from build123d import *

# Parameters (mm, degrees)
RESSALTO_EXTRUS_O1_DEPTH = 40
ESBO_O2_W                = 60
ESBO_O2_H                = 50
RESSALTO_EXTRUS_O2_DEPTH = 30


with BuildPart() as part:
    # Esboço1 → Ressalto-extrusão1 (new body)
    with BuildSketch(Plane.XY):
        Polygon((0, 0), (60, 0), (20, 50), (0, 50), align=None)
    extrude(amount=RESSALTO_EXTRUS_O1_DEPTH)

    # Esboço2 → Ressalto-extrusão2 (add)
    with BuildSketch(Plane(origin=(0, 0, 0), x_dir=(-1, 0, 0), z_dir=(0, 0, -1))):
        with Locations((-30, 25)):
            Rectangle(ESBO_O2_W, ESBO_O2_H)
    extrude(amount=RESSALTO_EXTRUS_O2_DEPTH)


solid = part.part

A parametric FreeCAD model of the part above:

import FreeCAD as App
import Part
import Sketcher

V = App.Vector
Q = App.Units.Quantity

doc = App.newDocument("Part")
body = doc.addObject("PartDesign::Body", "Body")

# Sketch on XY plane
sketch1 = body.newObject("Sketcher::SketchObject", "Sketch")
sketch1.AttachmentSupport = (doc.getObject("XY_Plane"), [""])
sketch1.MapMode = "FlatFace"
sketch1.addGeometry([
    Part.LineSegment(V(0, 0, 0), V(60, 0, 0)),
    Part.LineSegment(V(60, 0, 0), V(20, 50, 0)),
    Part.LineSegment(V(20, 50, 0), V(0, 50, 0)),
    Part.LineSegment(V(0, 50, 0), V(0, 0, 0)),
], False)
sketch1.addConstraint([
    Sketcher.Constraint("Coincident", 0, 2, 1, 1),
    Sketcher.Constraint("Coincident", 1, 2, 2, 1),
    Sketcher.Constraint("Coincident", 2, 2, 3, 1),
    Sketcher.Constraint("Coincident", 3, 2, 0, 1),
    Sketcher.Constraint("Horizontal", 0),
    Sketcher.Constraint("Horizontal", 2),
    Sketcher.Constraint("Vertical", 3),
    Sketcher.Constraint("Coincident", 3, 2, -1, 1),
    Sketcher.Constraint("DistanceX", 0, 1, 0, 2, Q("60 mm")),
    Sketcher.Constraint("DistanceX", 2, 2, 2, 1, Q("20 mm")),
    Sketcher.Constraint("DistanceY", 3, 2, 3, 1, Q("50 mm")),
])
pad1 = body.newObject("PartDesign::Pad", "Pad")
pad1.Profile = sketch1
pad1.Length = 40

# Sketch on XY plane
sketch2 = body.newObject("Sketcher::SketchObject", "Sketch001")
sketch2.AttachmentSupport = (doc.getObject("XY_Plane"), [""])
sketch2.MapMode = "FlatFace"
sketch2.addGeometry([
    Part.LineSegment(V(60, 50, 0), V(60, 0, 0)),
    Part.LineSegment(V(60, 0, 0), V(0, 0, 0)),
    Part.LineSegment(V(0, 0, 0), V(0, 50, 0)),
    Part.LineSegment(V(0, 50, 0), V(60, 50, 0)),
], False)
sketch2.addConstraint([
    Sketcher.Constraint("Coincident", 0, 2, 1, 1),
    Sketcher.Constraint("Coincident", 1, 2, 2, 1),
    Sketcher.Constraint("Coincident", 2, 2, 3, 1),
    Sketcher.Constraint("Coincident", 3, 2, 0, 1),
    Sketcher.Constraint("Vertical", 0),
    Sketcher.Constraint("Horizontal", 1),
    Sketcher.Constraint("Vertical", 2),
    Sketcher.Constraint("Horizontal", 3),
    Sketcher.Constraint("Coincident", 1, 2, -1, 1),
    Sketcher.Constraint("DistanceX", 1, 2, 1, 1, Q("60 mm")),
    Sketcher.Constraint("DistanceY", 0, 2, 0, 1, Q("50 mm")),
])
pad2 = body.newObject("PartDesign::Pad", "Pad001")
pad2.Profile = sketch2
pad2.Length = 30
pad2.Reversed = True

doc.recompute()
